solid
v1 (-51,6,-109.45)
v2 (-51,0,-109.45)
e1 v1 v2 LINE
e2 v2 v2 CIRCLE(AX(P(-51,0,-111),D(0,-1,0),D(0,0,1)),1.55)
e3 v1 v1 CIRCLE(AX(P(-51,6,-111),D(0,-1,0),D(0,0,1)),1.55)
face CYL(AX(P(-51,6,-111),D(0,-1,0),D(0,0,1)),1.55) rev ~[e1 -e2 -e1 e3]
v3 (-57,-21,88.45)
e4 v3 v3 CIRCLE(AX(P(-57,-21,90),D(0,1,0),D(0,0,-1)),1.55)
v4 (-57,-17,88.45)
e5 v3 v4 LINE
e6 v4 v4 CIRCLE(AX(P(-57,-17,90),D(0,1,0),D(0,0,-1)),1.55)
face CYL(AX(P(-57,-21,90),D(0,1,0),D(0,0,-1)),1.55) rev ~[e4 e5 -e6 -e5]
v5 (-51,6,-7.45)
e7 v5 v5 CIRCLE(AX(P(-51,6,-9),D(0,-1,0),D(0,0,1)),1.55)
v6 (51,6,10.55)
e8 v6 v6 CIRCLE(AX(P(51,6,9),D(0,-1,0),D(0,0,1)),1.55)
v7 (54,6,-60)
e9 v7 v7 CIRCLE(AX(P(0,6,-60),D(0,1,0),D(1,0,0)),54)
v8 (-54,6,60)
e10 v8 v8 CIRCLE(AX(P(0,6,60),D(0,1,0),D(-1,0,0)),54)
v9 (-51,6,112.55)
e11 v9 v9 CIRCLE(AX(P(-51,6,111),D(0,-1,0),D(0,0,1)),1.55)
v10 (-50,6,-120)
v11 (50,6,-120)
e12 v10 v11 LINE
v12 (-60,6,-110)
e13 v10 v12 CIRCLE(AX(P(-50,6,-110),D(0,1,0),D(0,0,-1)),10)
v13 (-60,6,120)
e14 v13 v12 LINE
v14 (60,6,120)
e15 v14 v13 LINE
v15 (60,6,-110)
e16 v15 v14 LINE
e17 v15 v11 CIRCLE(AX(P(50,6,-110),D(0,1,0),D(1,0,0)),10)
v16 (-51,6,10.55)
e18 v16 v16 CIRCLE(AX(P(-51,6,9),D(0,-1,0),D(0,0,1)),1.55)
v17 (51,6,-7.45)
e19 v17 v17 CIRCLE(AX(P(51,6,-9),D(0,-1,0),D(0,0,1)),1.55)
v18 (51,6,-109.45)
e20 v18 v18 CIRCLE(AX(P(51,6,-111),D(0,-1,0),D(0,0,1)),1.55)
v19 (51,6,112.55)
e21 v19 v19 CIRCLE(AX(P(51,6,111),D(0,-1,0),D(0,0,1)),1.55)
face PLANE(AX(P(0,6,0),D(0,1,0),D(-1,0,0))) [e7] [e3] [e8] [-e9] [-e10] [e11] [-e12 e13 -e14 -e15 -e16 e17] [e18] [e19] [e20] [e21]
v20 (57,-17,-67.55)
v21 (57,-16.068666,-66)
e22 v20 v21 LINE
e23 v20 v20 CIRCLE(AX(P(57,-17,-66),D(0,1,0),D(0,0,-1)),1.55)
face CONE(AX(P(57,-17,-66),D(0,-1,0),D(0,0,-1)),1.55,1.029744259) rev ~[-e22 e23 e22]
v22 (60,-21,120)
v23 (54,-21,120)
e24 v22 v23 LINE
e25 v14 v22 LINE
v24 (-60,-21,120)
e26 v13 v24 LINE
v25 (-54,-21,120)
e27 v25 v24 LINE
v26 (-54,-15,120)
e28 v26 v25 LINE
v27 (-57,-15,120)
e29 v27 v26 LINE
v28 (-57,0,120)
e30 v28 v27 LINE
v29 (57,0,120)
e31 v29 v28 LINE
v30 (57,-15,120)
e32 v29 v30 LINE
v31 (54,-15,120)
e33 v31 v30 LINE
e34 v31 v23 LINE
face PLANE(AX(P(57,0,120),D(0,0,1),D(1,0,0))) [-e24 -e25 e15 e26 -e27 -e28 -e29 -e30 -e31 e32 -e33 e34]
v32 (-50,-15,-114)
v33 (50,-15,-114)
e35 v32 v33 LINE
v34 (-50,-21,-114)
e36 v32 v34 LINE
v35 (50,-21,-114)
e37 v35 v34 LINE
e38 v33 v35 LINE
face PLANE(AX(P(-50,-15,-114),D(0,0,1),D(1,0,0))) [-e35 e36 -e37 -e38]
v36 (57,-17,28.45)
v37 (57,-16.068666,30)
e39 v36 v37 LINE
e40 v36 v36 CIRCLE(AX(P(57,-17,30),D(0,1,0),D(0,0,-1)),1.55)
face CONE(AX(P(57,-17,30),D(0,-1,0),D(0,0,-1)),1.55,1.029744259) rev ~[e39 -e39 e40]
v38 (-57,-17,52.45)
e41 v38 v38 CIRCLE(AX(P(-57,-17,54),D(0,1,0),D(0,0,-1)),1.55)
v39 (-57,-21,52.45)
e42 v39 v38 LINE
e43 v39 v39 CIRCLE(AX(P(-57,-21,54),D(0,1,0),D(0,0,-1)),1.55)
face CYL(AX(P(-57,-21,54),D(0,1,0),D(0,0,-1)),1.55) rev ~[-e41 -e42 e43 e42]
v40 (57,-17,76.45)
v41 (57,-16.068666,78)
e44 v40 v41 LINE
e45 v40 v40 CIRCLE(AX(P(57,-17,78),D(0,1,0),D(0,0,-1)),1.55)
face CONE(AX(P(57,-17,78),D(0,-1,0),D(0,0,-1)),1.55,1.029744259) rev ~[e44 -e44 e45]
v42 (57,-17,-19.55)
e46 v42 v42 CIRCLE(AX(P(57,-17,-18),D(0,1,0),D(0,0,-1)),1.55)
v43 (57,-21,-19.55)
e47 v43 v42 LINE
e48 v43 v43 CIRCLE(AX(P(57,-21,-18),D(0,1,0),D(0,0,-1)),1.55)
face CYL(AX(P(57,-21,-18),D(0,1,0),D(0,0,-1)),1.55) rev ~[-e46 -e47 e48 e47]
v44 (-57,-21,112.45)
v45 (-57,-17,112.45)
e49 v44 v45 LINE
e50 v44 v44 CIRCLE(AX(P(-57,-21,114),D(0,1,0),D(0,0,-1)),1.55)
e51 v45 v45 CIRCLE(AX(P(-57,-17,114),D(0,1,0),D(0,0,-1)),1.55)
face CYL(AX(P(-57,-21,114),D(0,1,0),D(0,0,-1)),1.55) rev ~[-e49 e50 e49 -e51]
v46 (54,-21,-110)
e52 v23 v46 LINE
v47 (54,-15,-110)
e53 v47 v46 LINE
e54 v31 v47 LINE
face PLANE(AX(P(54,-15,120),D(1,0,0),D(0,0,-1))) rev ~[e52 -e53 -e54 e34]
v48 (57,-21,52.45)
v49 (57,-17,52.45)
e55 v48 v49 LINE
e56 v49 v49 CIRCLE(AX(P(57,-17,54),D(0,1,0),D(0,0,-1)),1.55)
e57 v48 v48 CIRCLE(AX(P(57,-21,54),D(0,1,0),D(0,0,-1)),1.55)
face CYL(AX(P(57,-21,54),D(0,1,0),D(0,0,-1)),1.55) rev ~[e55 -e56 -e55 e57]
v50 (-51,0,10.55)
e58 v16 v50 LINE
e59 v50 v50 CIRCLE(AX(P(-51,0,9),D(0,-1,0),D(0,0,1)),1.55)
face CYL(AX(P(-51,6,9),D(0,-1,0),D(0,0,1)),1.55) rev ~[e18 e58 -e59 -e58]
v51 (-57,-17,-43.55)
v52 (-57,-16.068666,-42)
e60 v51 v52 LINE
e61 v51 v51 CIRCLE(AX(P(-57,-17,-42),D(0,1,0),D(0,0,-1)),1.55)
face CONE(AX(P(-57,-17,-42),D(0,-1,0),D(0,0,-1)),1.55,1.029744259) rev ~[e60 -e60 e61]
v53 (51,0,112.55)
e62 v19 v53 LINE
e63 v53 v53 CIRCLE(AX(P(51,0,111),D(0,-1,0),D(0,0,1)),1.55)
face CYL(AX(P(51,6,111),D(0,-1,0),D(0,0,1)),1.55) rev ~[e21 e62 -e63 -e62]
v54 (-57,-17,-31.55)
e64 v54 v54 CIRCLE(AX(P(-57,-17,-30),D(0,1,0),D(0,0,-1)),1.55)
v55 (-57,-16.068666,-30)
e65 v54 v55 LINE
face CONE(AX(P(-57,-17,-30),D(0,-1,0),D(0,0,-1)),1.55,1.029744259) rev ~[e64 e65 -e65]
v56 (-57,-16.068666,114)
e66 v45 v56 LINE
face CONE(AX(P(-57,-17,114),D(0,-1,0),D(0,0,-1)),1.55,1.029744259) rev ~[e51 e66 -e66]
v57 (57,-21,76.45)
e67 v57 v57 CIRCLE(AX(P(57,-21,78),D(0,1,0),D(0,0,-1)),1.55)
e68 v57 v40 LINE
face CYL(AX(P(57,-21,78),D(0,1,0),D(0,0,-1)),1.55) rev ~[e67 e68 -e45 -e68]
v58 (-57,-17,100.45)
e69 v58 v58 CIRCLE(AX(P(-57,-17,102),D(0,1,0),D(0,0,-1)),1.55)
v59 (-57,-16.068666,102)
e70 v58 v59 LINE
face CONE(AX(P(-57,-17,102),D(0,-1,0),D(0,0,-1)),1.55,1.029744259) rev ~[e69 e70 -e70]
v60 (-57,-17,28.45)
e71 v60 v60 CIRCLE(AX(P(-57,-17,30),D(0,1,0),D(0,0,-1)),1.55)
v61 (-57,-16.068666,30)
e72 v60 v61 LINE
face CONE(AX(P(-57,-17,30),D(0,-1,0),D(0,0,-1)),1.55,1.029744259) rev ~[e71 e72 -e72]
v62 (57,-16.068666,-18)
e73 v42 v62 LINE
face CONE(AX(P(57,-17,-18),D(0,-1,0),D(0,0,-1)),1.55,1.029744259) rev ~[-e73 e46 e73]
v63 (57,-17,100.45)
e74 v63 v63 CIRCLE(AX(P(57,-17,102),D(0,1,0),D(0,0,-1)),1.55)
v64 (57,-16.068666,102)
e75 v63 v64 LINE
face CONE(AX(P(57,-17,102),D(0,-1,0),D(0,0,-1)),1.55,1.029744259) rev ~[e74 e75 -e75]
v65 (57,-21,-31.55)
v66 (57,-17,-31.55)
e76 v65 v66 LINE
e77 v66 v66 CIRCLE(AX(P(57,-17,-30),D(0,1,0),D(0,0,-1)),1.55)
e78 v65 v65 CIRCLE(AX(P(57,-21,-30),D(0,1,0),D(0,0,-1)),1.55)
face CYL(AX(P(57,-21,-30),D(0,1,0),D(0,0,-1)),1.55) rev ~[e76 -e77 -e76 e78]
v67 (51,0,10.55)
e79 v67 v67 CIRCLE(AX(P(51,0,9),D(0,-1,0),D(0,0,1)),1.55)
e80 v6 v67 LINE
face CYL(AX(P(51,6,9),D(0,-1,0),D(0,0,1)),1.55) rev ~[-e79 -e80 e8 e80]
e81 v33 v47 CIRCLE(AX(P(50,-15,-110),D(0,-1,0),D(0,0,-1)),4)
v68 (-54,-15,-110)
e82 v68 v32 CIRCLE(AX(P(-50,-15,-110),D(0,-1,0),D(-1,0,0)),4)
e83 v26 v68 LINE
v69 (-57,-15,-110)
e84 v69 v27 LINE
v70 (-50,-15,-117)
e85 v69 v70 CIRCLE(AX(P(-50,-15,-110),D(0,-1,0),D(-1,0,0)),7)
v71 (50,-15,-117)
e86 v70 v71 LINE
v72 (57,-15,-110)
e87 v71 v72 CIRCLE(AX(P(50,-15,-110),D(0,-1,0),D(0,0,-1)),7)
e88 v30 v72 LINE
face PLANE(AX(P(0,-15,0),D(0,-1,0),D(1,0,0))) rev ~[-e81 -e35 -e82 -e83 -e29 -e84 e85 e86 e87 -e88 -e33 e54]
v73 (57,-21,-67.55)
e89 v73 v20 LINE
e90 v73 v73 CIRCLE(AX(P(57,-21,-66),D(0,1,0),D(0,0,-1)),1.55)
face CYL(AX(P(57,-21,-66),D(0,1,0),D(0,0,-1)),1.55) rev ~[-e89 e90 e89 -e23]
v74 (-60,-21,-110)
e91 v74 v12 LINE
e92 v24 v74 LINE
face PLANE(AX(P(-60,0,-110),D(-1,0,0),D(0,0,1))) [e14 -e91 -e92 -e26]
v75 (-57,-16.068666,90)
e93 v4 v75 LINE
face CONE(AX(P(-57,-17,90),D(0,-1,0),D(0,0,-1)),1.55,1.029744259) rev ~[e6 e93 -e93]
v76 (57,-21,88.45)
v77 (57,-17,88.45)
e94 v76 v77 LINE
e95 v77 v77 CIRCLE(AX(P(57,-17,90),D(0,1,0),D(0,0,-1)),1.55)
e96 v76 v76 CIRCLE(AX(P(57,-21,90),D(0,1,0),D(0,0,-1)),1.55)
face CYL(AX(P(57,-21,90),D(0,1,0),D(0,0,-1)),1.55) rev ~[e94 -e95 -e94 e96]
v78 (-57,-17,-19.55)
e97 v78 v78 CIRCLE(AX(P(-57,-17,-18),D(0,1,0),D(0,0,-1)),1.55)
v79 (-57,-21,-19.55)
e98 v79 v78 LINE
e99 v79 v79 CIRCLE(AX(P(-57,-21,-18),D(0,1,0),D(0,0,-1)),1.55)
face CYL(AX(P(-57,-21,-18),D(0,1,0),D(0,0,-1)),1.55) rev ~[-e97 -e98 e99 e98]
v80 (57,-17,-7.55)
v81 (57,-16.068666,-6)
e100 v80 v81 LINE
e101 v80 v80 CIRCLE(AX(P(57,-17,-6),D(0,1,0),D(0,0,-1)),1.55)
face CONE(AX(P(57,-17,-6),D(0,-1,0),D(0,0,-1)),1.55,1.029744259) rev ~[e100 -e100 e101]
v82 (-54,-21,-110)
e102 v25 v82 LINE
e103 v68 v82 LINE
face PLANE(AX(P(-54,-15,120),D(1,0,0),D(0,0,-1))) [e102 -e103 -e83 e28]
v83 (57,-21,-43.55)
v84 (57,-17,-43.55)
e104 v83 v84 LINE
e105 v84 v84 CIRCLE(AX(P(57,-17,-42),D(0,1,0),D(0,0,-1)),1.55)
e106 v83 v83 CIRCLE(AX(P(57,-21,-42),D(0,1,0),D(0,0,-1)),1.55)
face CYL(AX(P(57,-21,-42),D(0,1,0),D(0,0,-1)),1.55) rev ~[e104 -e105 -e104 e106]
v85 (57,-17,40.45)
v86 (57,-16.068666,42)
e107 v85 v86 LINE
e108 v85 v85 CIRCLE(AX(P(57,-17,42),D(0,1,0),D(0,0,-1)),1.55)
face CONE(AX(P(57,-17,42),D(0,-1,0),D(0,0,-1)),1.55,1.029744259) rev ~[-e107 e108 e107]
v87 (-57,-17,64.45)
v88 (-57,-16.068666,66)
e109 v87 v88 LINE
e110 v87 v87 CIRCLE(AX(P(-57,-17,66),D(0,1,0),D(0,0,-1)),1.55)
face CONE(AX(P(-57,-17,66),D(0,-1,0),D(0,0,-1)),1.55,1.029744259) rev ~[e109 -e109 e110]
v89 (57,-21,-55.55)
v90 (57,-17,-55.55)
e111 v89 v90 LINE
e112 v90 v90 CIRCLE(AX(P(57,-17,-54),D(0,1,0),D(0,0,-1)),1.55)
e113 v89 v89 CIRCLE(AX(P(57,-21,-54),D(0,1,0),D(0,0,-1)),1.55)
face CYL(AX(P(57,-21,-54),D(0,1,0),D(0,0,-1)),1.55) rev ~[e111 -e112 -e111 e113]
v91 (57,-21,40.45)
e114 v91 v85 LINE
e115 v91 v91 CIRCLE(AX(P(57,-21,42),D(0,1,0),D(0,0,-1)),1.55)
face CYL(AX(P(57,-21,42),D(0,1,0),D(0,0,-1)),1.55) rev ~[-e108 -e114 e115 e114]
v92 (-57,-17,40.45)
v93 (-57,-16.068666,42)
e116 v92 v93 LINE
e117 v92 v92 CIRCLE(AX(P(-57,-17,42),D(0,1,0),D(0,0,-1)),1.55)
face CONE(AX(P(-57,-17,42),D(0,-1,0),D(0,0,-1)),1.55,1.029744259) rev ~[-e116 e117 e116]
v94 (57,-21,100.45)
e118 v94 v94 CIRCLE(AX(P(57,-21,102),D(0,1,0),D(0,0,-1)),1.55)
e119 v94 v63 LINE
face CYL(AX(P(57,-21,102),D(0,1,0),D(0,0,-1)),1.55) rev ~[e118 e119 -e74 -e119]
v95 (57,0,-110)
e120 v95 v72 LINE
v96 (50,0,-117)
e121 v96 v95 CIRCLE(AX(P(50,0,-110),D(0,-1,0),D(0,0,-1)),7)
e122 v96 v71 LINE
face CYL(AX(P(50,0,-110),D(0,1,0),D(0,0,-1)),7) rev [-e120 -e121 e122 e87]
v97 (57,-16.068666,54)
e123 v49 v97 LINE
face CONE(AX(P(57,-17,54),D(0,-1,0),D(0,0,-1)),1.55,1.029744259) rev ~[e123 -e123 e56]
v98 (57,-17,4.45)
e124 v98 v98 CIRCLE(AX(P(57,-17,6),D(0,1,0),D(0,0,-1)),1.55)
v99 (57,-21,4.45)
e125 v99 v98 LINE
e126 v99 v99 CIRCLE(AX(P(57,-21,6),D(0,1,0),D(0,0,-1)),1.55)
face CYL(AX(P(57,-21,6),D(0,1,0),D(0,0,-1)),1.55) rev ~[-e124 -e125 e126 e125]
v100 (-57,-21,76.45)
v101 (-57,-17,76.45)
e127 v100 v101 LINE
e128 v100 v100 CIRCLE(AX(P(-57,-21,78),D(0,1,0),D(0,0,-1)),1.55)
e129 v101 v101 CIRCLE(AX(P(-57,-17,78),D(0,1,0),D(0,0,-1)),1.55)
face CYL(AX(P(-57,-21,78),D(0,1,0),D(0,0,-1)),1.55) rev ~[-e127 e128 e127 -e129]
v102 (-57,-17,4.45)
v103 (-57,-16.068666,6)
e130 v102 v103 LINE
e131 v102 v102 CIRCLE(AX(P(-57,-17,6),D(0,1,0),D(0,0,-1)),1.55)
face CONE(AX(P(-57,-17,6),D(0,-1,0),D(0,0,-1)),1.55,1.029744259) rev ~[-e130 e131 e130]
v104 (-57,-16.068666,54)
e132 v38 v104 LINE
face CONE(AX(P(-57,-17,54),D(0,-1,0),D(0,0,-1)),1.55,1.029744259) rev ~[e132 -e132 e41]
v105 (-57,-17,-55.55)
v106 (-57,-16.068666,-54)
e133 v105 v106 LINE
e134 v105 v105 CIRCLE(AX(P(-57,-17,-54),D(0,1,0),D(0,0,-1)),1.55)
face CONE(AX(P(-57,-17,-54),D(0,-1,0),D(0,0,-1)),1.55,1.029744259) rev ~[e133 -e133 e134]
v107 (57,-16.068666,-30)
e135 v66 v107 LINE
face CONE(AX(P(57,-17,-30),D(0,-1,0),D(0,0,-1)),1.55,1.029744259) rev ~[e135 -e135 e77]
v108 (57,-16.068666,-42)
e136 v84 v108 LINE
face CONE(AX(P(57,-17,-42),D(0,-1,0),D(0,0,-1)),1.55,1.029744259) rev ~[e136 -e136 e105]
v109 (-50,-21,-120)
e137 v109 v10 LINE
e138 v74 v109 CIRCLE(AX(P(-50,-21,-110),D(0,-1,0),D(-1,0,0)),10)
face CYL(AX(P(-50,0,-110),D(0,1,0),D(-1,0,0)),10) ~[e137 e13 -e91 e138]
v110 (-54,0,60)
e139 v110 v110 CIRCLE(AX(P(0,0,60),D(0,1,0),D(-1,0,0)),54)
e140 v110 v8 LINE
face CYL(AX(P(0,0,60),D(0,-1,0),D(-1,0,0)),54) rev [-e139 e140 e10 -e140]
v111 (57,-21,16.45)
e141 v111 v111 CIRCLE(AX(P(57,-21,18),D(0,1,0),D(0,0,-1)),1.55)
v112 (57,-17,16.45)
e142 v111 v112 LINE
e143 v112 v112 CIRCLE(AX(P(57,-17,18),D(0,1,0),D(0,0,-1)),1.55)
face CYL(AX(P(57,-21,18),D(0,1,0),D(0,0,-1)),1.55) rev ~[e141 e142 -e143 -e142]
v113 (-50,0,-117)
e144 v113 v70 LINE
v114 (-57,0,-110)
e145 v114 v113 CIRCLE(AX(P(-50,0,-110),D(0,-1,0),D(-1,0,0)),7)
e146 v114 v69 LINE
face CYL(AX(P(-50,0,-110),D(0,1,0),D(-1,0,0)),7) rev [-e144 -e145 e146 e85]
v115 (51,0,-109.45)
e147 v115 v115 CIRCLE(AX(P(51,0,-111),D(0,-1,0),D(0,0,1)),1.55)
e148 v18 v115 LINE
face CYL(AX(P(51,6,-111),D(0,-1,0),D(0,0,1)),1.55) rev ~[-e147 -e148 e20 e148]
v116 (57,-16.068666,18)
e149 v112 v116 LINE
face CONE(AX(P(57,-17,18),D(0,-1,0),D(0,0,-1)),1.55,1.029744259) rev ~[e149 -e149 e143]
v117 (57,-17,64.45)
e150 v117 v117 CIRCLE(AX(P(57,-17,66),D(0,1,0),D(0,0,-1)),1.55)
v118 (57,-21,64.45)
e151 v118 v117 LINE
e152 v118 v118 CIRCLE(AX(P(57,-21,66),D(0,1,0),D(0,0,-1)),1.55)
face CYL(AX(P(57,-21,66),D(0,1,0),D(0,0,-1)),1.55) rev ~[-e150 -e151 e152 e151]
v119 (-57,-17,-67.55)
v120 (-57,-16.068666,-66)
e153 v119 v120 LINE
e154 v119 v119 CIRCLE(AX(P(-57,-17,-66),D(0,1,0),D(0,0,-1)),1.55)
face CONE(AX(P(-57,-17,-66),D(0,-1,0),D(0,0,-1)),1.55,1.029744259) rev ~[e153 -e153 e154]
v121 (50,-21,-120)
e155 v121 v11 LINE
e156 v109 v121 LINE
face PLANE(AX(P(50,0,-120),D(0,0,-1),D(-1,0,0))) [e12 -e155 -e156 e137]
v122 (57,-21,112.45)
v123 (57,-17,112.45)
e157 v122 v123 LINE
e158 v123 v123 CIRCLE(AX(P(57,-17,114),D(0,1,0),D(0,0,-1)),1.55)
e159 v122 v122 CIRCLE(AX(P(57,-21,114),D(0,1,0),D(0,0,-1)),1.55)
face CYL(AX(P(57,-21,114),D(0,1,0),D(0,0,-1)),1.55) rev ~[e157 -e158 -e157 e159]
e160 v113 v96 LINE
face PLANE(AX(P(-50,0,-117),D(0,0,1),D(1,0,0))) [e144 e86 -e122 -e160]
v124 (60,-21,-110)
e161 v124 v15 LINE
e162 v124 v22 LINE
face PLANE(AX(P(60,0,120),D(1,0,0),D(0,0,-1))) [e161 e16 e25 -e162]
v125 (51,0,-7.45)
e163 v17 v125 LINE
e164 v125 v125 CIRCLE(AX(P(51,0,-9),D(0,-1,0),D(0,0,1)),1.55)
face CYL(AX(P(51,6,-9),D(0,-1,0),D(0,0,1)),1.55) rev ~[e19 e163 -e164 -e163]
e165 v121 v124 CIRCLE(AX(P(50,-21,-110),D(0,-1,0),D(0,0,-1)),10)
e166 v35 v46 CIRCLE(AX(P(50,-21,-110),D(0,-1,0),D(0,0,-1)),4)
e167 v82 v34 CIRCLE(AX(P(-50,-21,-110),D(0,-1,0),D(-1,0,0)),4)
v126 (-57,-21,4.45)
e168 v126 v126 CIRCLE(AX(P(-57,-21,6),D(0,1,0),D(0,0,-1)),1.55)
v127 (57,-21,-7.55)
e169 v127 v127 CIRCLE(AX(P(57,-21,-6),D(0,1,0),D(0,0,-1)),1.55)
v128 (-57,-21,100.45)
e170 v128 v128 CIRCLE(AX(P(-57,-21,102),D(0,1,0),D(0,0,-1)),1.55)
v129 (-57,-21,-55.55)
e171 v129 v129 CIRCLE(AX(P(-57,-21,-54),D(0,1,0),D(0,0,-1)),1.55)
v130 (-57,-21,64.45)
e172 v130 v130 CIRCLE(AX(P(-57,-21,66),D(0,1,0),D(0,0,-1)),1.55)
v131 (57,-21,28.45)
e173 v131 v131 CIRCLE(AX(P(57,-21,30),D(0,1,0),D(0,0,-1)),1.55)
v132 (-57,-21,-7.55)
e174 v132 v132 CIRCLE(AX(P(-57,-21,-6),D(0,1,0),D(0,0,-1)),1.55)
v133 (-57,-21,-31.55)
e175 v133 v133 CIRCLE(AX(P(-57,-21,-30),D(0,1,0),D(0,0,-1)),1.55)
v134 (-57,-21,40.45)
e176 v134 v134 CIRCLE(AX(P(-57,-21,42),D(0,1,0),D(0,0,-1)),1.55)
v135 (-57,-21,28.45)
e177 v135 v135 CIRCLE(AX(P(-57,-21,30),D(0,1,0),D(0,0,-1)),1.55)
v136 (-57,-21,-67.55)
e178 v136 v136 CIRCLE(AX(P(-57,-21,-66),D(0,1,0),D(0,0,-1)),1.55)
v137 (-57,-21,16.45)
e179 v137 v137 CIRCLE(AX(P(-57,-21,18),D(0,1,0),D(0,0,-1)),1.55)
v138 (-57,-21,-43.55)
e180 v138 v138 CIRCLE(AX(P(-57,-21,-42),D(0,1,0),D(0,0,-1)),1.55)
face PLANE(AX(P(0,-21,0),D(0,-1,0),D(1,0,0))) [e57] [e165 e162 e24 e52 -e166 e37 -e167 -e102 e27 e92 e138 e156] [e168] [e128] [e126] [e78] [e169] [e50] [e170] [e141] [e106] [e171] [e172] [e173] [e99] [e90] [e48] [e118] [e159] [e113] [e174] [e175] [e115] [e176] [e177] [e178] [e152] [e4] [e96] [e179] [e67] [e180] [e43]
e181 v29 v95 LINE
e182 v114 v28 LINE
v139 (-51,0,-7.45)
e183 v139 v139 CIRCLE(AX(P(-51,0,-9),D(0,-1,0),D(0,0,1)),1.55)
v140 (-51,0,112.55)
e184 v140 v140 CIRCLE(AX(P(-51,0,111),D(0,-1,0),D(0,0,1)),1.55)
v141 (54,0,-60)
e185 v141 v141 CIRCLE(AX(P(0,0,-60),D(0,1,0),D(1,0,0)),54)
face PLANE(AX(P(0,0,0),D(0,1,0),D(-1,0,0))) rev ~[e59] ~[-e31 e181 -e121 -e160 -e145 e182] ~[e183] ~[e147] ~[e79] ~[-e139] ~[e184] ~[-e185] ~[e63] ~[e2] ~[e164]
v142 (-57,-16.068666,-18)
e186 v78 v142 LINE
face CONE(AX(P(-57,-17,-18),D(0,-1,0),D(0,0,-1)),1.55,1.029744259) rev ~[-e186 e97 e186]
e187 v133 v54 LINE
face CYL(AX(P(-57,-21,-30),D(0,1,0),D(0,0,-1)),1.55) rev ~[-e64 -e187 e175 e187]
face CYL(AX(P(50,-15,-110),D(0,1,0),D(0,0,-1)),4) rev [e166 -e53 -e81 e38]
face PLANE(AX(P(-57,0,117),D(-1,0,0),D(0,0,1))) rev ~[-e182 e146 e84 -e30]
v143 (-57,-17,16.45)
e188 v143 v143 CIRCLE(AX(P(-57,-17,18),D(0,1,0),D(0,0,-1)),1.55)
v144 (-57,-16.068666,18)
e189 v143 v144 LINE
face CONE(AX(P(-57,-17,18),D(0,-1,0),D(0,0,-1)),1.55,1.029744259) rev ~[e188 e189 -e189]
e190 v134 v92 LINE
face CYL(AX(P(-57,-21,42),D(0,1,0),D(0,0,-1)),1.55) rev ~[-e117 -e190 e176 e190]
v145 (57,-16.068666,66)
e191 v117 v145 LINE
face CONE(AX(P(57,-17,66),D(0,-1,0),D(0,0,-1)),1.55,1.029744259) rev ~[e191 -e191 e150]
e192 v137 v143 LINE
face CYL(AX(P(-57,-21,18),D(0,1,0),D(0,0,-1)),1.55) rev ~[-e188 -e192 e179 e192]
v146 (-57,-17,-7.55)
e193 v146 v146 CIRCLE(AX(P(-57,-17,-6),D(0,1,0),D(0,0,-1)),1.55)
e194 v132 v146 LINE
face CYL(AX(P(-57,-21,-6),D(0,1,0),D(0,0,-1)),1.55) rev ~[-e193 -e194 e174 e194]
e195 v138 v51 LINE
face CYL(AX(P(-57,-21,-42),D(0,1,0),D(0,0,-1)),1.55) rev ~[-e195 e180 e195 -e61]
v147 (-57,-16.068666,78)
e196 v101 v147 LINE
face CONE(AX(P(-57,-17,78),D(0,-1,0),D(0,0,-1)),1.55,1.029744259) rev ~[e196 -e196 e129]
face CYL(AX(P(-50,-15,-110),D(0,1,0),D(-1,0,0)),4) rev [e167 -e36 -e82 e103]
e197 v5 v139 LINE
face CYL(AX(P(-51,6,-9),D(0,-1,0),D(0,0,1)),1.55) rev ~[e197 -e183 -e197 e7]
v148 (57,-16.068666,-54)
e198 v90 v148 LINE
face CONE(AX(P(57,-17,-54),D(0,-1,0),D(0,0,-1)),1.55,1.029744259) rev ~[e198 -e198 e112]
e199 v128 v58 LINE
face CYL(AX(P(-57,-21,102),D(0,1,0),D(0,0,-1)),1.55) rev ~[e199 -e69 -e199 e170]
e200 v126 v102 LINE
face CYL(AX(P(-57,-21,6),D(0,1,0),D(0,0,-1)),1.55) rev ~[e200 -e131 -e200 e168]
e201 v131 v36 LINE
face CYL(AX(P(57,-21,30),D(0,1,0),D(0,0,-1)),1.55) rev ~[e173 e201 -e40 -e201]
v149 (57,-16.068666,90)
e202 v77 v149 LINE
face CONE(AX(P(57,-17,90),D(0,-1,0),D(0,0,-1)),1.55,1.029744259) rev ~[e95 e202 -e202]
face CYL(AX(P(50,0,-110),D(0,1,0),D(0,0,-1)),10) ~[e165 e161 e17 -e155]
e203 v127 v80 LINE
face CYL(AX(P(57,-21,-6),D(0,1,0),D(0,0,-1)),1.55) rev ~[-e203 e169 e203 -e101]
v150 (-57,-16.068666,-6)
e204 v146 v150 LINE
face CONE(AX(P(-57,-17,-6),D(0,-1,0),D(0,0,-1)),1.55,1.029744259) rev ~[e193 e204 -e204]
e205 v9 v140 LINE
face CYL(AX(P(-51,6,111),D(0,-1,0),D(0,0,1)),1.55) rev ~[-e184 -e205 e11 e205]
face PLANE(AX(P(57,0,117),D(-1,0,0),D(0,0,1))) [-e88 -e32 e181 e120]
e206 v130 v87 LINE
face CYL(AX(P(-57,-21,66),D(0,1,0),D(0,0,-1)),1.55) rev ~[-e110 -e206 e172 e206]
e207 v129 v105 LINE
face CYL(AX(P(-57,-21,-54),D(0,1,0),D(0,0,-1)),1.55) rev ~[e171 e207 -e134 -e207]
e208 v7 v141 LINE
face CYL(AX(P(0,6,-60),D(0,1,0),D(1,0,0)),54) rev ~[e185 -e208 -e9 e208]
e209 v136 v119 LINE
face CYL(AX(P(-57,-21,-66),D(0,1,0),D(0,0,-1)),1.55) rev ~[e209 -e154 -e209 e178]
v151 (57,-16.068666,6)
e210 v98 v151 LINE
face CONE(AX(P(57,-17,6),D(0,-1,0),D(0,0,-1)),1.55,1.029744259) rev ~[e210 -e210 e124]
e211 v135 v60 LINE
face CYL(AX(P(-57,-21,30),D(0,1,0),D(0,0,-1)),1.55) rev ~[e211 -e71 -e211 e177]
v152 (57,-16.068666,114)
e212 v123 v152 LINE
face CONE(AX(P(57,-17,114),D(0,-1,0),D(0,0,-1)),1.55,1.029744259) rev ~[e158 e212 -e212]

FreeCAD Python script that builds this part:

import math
import FreeCAD as App
import Part
import Sketcher
from FreeCAD import Vector

doc = App.newDocument("Part")
body = doc.addObject("PartDesign::Body", "Body")

# Sketch on XZ plane
sketch1 = body.newObject("Sketcher::SketchObject", "Sketch")
sketch1.AttachmentSupport = (doc.getObject("XZ_Plane"), [""])
sketch1.MapMode = "FlatFace"
sketch1.addGeometry(Part.LineSegment(Vector(-60, 120, 0), Vector(60, 120, 0)), False)
sketch1.addGeometry(Part.LineSegment(Vector(60, 120, 0), Vector(60, -110, 0)), False)
sketch1.addGeometry(Part.ArcOfCircle(Part.Circle(Vector(50, -110, 0), Vector(0, 0, 1), 10), math.radians(-90), math.radians(0)), False)
sketch1.addGeometry(Part.LineSegment(Vector(50, -120, 0), Vector(-50, -120, 0)), False)
sketch1.addGeometry(Part.ArcOfCircle(Part.Circle(Vector(-50, -110, 0), Vector(0, 0, 1), 10), math.radians(180), math.radians(270)), False)
sketch1.addGeometry(Part.LineSegment(Vector(-60, -110, 0), Vector(-60, 120, 0)), False)
sketch1.addGeometry(Part.Circle(Vector(0, 60, 0), Vector(0, 0, 1), 54), False)
sketch1.addConstraint(Sketcher.Constraint("Coincident", 0, 2, 1, 1))
sketch1.addConstraint(Sketcher.Constraint("Tangent", 1, 2, 2, 2))
sketch1.addConstraint(Sketcher.Constraint("Tangent", 2, 1, 3, 1))
sketch1.addConstraint(Sketcher.Constraint("Tangent", 3, 2, 4, 2))
sketch1.addConstraint(Sketcher.Constraint("Tangent", 4, 1, 5, 1))
sketch1.addConstraint(Sketcher.Constraint("Coincident", 5, 2, 0, 1))
sketch1.addConstraint(Sketcher.Constraint("Horizontal", 0))
sketch1.addConstraint(Sketcher.Constraint("Vertical", 1))
sketch1.addConstraint(Sketcher.Constraint("Horizontal", 3))
sketch1.addConstraint(Sketcher.Constraint("Vertical", 5))
sketch1.addConstraint(Sketcher.Constraint("Equal", 2, 4))
sketch1.addConstraint(Sketcher.Constraint("PointOnObject", 6, 3, -2))
sketch1.addConstraint(Sketcher.Constraint("Radius", 2, 10.0))
sketch1.addConstraint(Sketcher.Constraint("DistanceX", 0, 1, 0, 2, 120.0))
sketch1.addConstraint(Sketcher.Constraint("Diameter", 6, 108.0))
sketch1.addConstraint(Sketcher.Constraint("DistanceY", -1, 1, 0, 2, 120.0))
sketch1.addConstraint(Sketcher.Constraint("DistanceY", 2, 1, -1, 1, 120.0))
sketch1.addConstraint(Sketcher.Constraint("DistanceX", -1, 1, 2, 3, 50.0))
sketch1.addConstraint(Sketcher.Constraint("DistanceY", -1, 1, 6, 3, 60.0))
pad1 = body.newObject("PartDesign::Pad", "Pad")
pad1.Profile = sketch1
pad1.Length = 6
pad1.Reversed = True

# Sketch on XZ plane
sketch2 = body.newObject("Sketcher::SketchObject", "Sketch001")
sketch2.AttachmentSupport = (doc.getObject("XZ_Plane"), [""])
sketch2.MapMode = "FlatFace"
sketch2.addGeometry(Part.LineSegment(Vector(60, -110, 0), Vector(60, 120, 0)), False)
sketch2.addGeometry(Part.LineSegment(Vector(60, 120, 0), Vector(57, 120, 0)), False)
sketch2.addGeometry(Part.LineSegment(Vector(57, 120, 0), Vector(57, -110, 0)), False)
sketch2.addGeometry(Part.ArcOfCircle(Part.Circle(Vector(50, -110, 0), Vector(0, 0, 1), 7), math.radians(-90), math.radians(0)), False)
sketch2.addGeometry(Part.LineSegment(Vector(50, -117, 0), Vector(-50, -117, 0)), False)
sketch2.addGeometry(Part.ArcOfCircle(Part.Circle(Vector(-50, -110, 0), Vector(0, 0, 1), 7), math.radians(180), math.radians(270)), False)
sketch2.addGeometry(Part.LineSegment(Vector(-57, -110, 0), Vector(-57, 120, 0)), False)
sketch2.addGeometry(Part.LineSegment(Vector(-57, 120, 0), Vector(-60, 120, 0)), False)
sketch2.addGeometry(Part.LineSegment(Vector(-60, 120, 0), Vector(-60, -110, 0)), False)
sketch2.addGeometry(Part.ArcOfCircle(Part.Circle(Vector(-50, -110, 0), Vector(0, 0, 1), 10), math.radians(180), math.radians(270)), False)
sketch2.addGeometry(Part.LineSegment(Vector(-50, -120, 0), Vector(50, -120, 0)), False)
sketch2.addGeometry(Part.ArcOfCircle(Part.Circle(Vector(50, -110, 0), Vector(0, 0, 1), 10), math.radians(-90), math.radians(0)), False)
sketch2.addConstraint(Sketcher.Constraint("Coincident", 0, 2, 1, 1))
sketch2.addConstraint(Sketcher.Constraint("Coincident", 1, 2, 2, 1))
sketch2.addConstraint(Sketcher.Constraint("Tangent", 2, 2, 3, 2))
sketch2.addConstraint(Sketcher.Constraint("Tangent", 3, 1, 4, 1))
sketch2.addConstraint(Sketcher.Constraint("Tangent", 4, 2, 5, 2))
sketch2.addConstraint(Sketcher.Constraint("Tangent", 5, 1, 6, 1))
sketch2.addConstraint(Sketcher.Constraint("Coincident", 6, 2, 7, 1))
sketch2.addConstraint(Sketcher.Constraint("Coincident", 7, 2, 8, 1))
sketch2.addConstraint(Sketcher.Constraint("Tangent", 8, 2, 9, 1))
sketch2.addConstraint(Sketcher.Constraint("Tangent", 9, 2, 10, 1))
sketch2.addConstraint(Sketcher.Constraint("Tangent", 10, 2, 11, 1))
sketch2.addConstraint(Sketcher.Constraint("Tangent", 11, 2, 0, 1))
sketch2.addConstraint(Sketcher.Constraint("Vertical", 0))
sketch2.addConstraint(Sketcher.Constraint("Horizontal", 1))
sketch2.addConstraint(Sketcher.Constraint("Vertical", 2))
sketch2.addConstraint(Sketcher.Constraint("Horizontal", 4))
sketch2.addConstraint(Sketcher.Constraint("Vertical", 6))
sketch2.addConstraint(Sketcher.Constraint("Horizontal", 7))
sketch2.addConstraint(Sketcher.Constraint("Vertical", 8))
sketch2.addConstraint(Sketcher.Constraint("Horizontal", 10))
sketch2.addConstraint(Sketcher.Constraint("Coincident", 9, 3, 5, 3))
sketch2.addConstraint(Sketcher.Constraint("Coincident", 11, 3, 3, 3))
sketch2.addConstraint(Sketcher.Constraint("Equal", 3, 5))
sketch2.addConstraint(Sketcher.Constraint("Symmetric", 1, 2, 6, 2, -2))
sketch2.addConstraint(Sketcher.Constraint("DistanceX", 1, 2, 1, 1, 3.0))
sketch2.addConstraint(Sketcher.Constraint("Radius", 3, 7.0))
sketch2.addConstraint(Sketcher.Constraint("DistanceX", 4, 2, 4, 1, 100.0))
sketch2.addConstraint(Sketcher.Constraint("DistanceY", 0, 1, 0, 2, 230.0))
sketch2.addConstraint(Sketcher.Constraint("DistanceY", 3, 3, -1, 1, 110.0))
pad2 = body.newObject("PartDesign::Pad", "Pad001")
pad2.Profile = sketch2
pad2.Length = 15

# Sketch on XZ plane
sketch3 = body.newObject("Sketcher::SketchObject", "Sketch002")
sketch3.AttachmentSupport = (doc.getObject("XZ_Plane"), [""])
sketch3.MapMode = "FlatFace"
sketch3.AttachmentOffset = App.Placement(Vector(0, 0, 15), App.Rotation())
sketch3.addGeometry(Part.ArcOfCircle(Part.Circle(Vector(50, -110, 0), Vector(0, 0, 1), 10), math.radians(-90), math.radians(0)), False)
sketch3.addGeometry(Part.LineSegment(Vector(60, -110, 0), Vector(60, 120, 0)), False)
sketch3.addGeometry(Part.LineSegment(Vector(60, 120, 0), Vector(54, 120, 0)), False)
sketch3.addGeometry(Part.LineSegment(Vector(54, 120, 0), Vector(54, -110, 0)), False)
sketch3.addGeometry(Part.ArcOfCircle(Part.Circle(Vector(50, -110, 0), Vector(0, 0, 1), 4), math.radians(-90), math.radians(0)), False)
sketch3.addGeometry(Part.LineSegment(Vector(50, -114, 0), Vector(-50, -114, 0)), False)
sketch3.addGeometry(Part.ArcOfCircle(Part.Circle(Vector(-50, -110, 0), Vector(0, 0, 1), 4), math.radians(180), math.radians(270)), False)
sketch3.addGeometry(Part.LineSegment(Vector(-54, -110, 0), Vector(-54, 120, 0)), False)
sketch3.addGeometry(Part.LineSegment(Vector(-54, 120, 0), Vector(-60, 120, 0)), False)
sketch3.addGeometry(Part.LineSegment(Vector(-60, 120, 0), Vector(-60, -110, 0)), False)
sketch3.addGeometry(Part.ArcOfCircle(Part.Circle(Vector(-50, -110, 0), Vector(0, 0, 1), 10), math.radians(180), math.radians(270)), False)
sketch3.addGeometry(Part.LineSegment(Vector(-50, -120, 0), Vector(50, -120, 0)), False)
sketch3.addConstraint(Sketcher.Constraint("Tangent", 0, 2, 1, 1))
sketch3.addConstraint(Sketcher.Constraint("Coincident", 1, 2, 2, 1))
sketch3.addConstraint(Sketcher.Constraint("Coincident", 2, 2, 3, 1))
sketch3.addConstraint(Sketcher.Constraint("Tangent", 3, 2, 4, 2))
sketch3.addConstraint(Sketcher.Constraint("Tangent", 4, 1, 5, 1))
sketch3.addConstraint(Sketcher.Constraint("Tangent", 5, 2, 6, 2))
sketch3.addConstraint(Sketcher.Constraint("Tangent", 6, 1, 7, 1))
sketch3.addConstraint(Sketcher.Constraint("Coincident", 7, 2, 8, 1))
sketch3.addConstraint(Sketcher.Constraint("Coincident", 8, 2, 9, 1))
sketch3.addConstraint(Sketcher.Constraint("Tangent", 9, 2, 10, 1))
sketch3.addConstraint(Sketcher.Constraint("Tangent", 10, 2, 11, 1))
sketch3.addConstraint(Sketcher.Constraint("Tangent", 11, 2, 0, 1))
sketch3.addConstraint(Sketcher.Constraint("Vertical", 1))
sketch3.addConstraint(Sketcher.Constraint("Horizontal", 2))
sketch3.addConstraint(Sketcher.Constraint("Vertical", 3))
sketch3.addConstraint(Sketcher.Constraint("Horizontal", 5))
sketch3.addConstraint(Sketcher.Constraint("Vertical", 7))
sketch3.addConstraint(Sketcher.Constraint("Horizontal", 8))
sketch3.addConstraint(Sketcher.Constraint("Vertical", 9))
sketch3.addConstraint(Sketcher.Constraint("Horizontal", 11))
sketch3.addConstraint(Sketcher.Constraint("Coincident", 4, 3, 0, 3))
sketch3.addConstraint(Sketcher.Constraint("Coincident", 10, 3, 6, 3))
sketch3.addConstraint(Sketcher.Constraint("Equal", 4, 6))
sketch3.addConstraint(Sketcher.Constraint("Symmetric", 2, 2, 7, 2, -2))
sketch3.addConstraint(Sketcher.Constraint("Radius", 0, 10.0))
sketch3.addConstraint(Sketcher.Constraint("Radius", 4, 4.0))
sketch3.addConstraint(Sketcher.Constraint("DistanceX", 5, 2, 5, 1, 100.0))
sketch3.addConstraint(Sketcher.Constraint("DistanceY", 1, 1, 1, 2, 230.0))
sketch3.addConstraint(Sketcher.Constraint("DistanceY", 0, 3, -1, 1, 110.0))
pad3 = body.newObject("PartDesign::Pad", "Pad002")
pad3.Profile = sketch3
pad3.Length = 6

# Sketch on XZ plane
sketch4 = body.newObject("Sketcher::SketchObject", "Sketch003")
sketch4.AttachmentSupport = (doc.getObject("XZ_Plane"), [""])
sketch4.MapMode = "FlatFace"
sketch4.AttachmentOffset = App.Placement(Vector(0, 0, -6), App.Rotation())
sketch4.addGeometry(Part.Circle(Vector(0, -60, 0), Vector(0, 0, 1), 54), False)
sketch4.addConstraint(Sketcher.Constraint("PointOnObject", 0, 3, -2))
sketch4.addConstraint(Sketcher.Constraint("Diameter", 0, 108.0))
sketch4.addConstraint(Sketcher.Constraint("DistanceY", 0, 3, -1, 1, 60.0))
pocket1 = body.newObject("PartDesign::Pocket", "Pocket")
pocket1.Profile = sketch4
pocket1.Type = "UpToFirst"
pocket1.Reversed = True

# Sketch on XZ plane
sketch5 = body.newObject("Sketcher::SketchObject", "Sketch004")
sketch5.AttachmentSupport = (doc.getObject("XZ_Plane"), [""])
sketch5.MapMode = "FlatFace"
sketch5.AttachmentOffset = App.Placement(Vector(0, 0, -6), App.Rotation())
sketch5.addGeometry(Part.Circle(Vector(-51, 9, 0), Vector(0, 0, 1), 1.6), False)
sketch5.addGeometry(Part.Circle(Vector(-51, 111, 0), Vector(0, 0, 1), 1.6), False)
sketch5.addGeometry(Part.Circle(Vector(51, 111, 0), Vector(0, 0, 1), 1.6), False)
sketch5.addGeometry(Part.Circle(Vector(51, 9, 0), Vector(0, 0, 1), 1.6), False)
sketch5.addGeometry(Part.Circle(Vector(-51, -111, 0), Vector(0, 0, 1), 1.6), False)
sketch5.addGeometry(Part.Circle(Vector(-51, -9, 0), Vector(0, 0, 1), 1.6), False)
sketch5.addGeometry(Part.Circle(Vector(51, -111, 0), Vector(0, 0, 1), 1.6), False)
sketch5.addGeometry(Part.Circle(Vector(51, -9, 0), Vector(0, 0, 1), 1.6), False)
sketch5.addConstraint(Sketcher.Constraint("Equal", 0, 1))
sketch5.addConstraint(Sketcher.Constraint("Equal", 1, 2))
sketch5.addConstraint(Sketcher.Constraint("Equal", 2, 3))
sketch5.addConstraint(Sketcher.Constraint("Equal", 3, 4))
sketch5.addConstraint(Sketcher.Constraint("Equal", 4, 5))
sketch5.addConstraint(Sketcher.Constraint("Equal", 5, 6))
sketch5.addConstraint(Sketcher.Constraint("Equal", 6, 7))
sketch5.addConstraint(Sketcher.Constraint("Symmetric", 2, 3, 4, 3, -1, 1))
sketch5.addConstraint(Sketcher.Constraint("Symmetric", 3, 3, 5, 3, -1, 1))
sketch5.addConstraint(Sketcher.Constraint("Symmetric", 1, 3, 6, 3, -1, 1))
sketch5.addConstraint(Sketcher.Constraint("Symmetric", 0, 3, 7, 3, -1, 1))
sketch5.addConstraint(Sketcher.Constraint("Symmetric", 1, 3, 2, 3, -2))
sketch5.addConstraint(Sketcher.Constraint("Symmetric", 0, 3, 3, 3, -2))
sketch5.addConstraint(Sketcher.Constraint("Vertical", 0, 3, 1, 3))
sketch5.addConstraint(Sketcher.Constraint("Diameter", 0, 3.1))
sketch5.addConstraint(Sketcher.Constraint("DistanceX", 0, 3, -1, 1, 51.0))
sketch5.addConstraint(Sketcher.Constraint("DistanceY", -1, 1, 0, 3, 9.0))
sketch5.addConstraint(Sketcher.Constraint("DistanceY", -1, 1, 1, 3, 111.0))
doc.recompute()
hole = body.newObject("PartDesign::Hole", "Hole")
hole.Profile = sketch5
hole.ThreadType = "None"
hole.Diameter = 3.1
hole.DepthType = "ThroughAll"
hole.Reversed = True

# Sketch on XZ plane
sketch6 = body.newObject("Sketcher::SketchObject", "Sketch005")
sketch6.AttachmentSupport = (doc.getObject("XZ_Plane"), [""])
sketch6.MapMode = "FlatFace"
sketch6.AttachmentOffset = App.Placement(Vector(0, 0, 21), App.Rotation())
sketch6.addGeometry(Part.Circle(Vector(57, 114, 0), Vector(0, 0, 1), 1.6), False)
sketch6.addGeometry(Part.Circle(Vector(-57, 114, 0), Vector(0, 0, 1), 1.6), False)
sketch6.addGeometry(Part.Circle(Vector(-57, 102, 0), Vector(0, 0, 1), 1.6), False)
sketch6.addGeometry(Part.Circle(Vector(57, 102, 0), Vector(0, 0, 1), 1.6), False)
sketch6.addGeometry(Part.Circle(Vector(-57, 90, 0), Vector(0, 0, 1), 1.6), False)
sketch6.addGeometry(Part.Circle(Vector(57, 90, 0), Vector(0, 0, 1), 1.6), False)
sketch6.addGeometry(Part.Circle(Vector(-57, 78, 0), Vector(0, 0, 1), 1.6), False)
sketch6.addGeometry(Part.Circle(Vector(57, 78, 0), Vector(0, 0, 1), 1.6), False)
sketch6.addGeometry(Part.Circle(Vector(-57, 66, 0), Vector(0, 0, 1), 1.6), False)
sketch6.addGeometry(Part.Circle(Vector(57, 66, 0), Vector(0, 0, 1), 1.6), False)
sketch6.addGeometry(Part.Circle(Vector(-57, 54, 0), Vector(0, 0, 1), 1.6), False)
sketch6.addGeometry(Part.Circle(Vector(57, 54, 0), Vector(0, 0, 1), 1.6), False)
sketch6.addGeometry(Part.Circle(Vector(-57, 42, 0), Vector(0, 0, 1), 1.6), False)
sketch6.addGeometry(Part.Circle(Vector(57, 42, 0), Vector(0, 0, 1), 1.6), False)
sketch6.addGeometry(Part.Circle(Vector(-57, 30, 0), Vector(0, 0, 1), 1.6), False)
sketch6.addGeometry(Part.Circle(Vector(57, 30, 0), Vector(0, 0, 1), 1.6), False)
sketch6.addGeometry(Part.Circle(Vector(-57, 18, 0), Vector(0, 0, 1), 1.6), False)
sketch6.addGeometry(Part.Circle(Vector(57, 18, 0), Vector(0, 0, 1), 1.6), False)
sketch6.addGeometry(Part.Circle(Vector(-57, 6, 0), Vector(0, 0, 1), 1.6), False)
sketch6.addGeometry(Part.Circle(Vector(57, 6, 0), Vector(0, 0, 1), 1.6), False)
sketch6.addGeometry(Part.Circle(Vector(-57, -6, 0), Vector(0, 0, 1), 1.6), False)
sketch6.addGeometry(Part.Circle(Vector(57, -6, 0), Vector(0, 0, 1), 1.6), False)
sketch6.addGeometry(Part.Circle(Vector(-57, -18, 0), Vector(0, 0, 1), 1.6), False)
sketch6.addGeometry(Part.Circle(Vector(57, -18, 0), Vector(0, 0, 1), 1.6), False)
sketch6.addGeometry(Part.Circle(Vector(-57, -30, 0), Vector(0, 0, 1), 1.6), False)
sketch6.addGeometry(Part.Circle(Vector(57, -30, 0), Vector(0, 0, 1), 1.6), False)
sketch6.addGeometry(Part.Circle(Vector(-57, -42, 0), Vector(0, 0, 1), 1.6), False)
sketch6.addGeometry(Part.Circle(Vector(57, -42, 0), Vector(0, 0, 1), 1.6), False)
sketch6.addGeometry(Part.Circle(Vector(-57, -54, 0), Vector(0, 0, 1), 1.6), False)
sketch6.addGeometry(Part.Circle(Vector(57, -54, 0), Vector(0, 0, 1), 1.6), False)
sketch6.addGeometry(Part.Circle(Vector(-57, -66, 0), Vector(0, 0, 1), 1.6), False)
sketch6.addGeometry(Part.Circle(Vector(57, -66, 0), Vector(0, 0, 1), 1.6), False)
sketch6.addConstraint(Sketcher.Constraint("Equal", 0, 1))
sketch6.addConstraint(Sketcher.Constraint("Equal", 1, 2))
sketch6.addConstraint(Sketcher.Constraint("Equal", 2, 3))
sketch6.addConstraint(Sketcher.Constraint("Equal", 3, 4))
sketch6.addConstraint(Sketcher.Constraint("Equal", 4, 5))
sketch6.addConstraint(Sketcher.Constraint("Equal", 5, 6))
sketch6.addConstraint(Sketcher.Constraint("Equal", 6, 7))
sketch6.addConstraint(Sketcher.Constraint("Equal", 7, 8))
sketch6.addConstraint(Sketcher.Constraint("Equal", 8, 9))
sketch6.addConstraint(Sketcher.Constraint("Equal", 9, 10))
sketch6.addConstraint(Sketcher.Constraint("Equal", 10, 11))
sketch6.addConstraint(Sketcher.Constraint("Equal", 11, 12))
sketch6.addConstraint(Sketcher.Constraint("Equal", 12, 13))
sketch6.addConstraint(Sketcher.Constraint("Equal", 13, 14))
sketch6.addConstraint(Sketcher.Constraint("Equal", 14, 15))
sketch6.addConstraint(Sketcher.Constraint("Equal", 15, 16))
sketch6.addConstraint(Sketcher.Constraint("Equal", 16, 17))
sketch6.addConstraint(Sketcher.Constraint("Equal", 17, 18))
sketch6.addConstraint(Sketcher.Constraint("Equal", 18, 19))
sketch6.addConstraint(Sketcher.Constraint("Equal", 19, 20))
sketch6.addConstraint(Sketcher.Constraint("Equal", 20, 21))
sketch6.addConstraint(Sketcher.Constraint("Equal", 21, 22))
sketch6.addConstraint(Sketcher.Constraint("Equal", 22, 23))
sketch6.addConstraint(Sketcher.Constraint("Equal", 23, 24))
sketch6.addConstraint(Sketcher.Constraint("Equal", 24, 25))
sketch6.addConstraint(Sketcher.Constraint("Equal", 25, 26))
sketch6.addConstraint(Sketcher.Constraint("Equal", 26, 27))
sketch6.addConstraint(Sketcher.Constraint("Equal", 27, 28))
sketch6.addConstraint(Sketcher.Constraint("Equal", 28, 29))
sketch6.addConstraint(Sketcher.Constraint("Equal", 29, 30))
sketch6.addConstraint(Sketcher.Constraint("Equal", 30, 31))
sketch6.addConstraint(Sketcher.Constraint("Symmetric", 19, 3, 20, 3, -1, 1))
sketch6.addConstraint(Sketcher.Constraint("Symmetric", 18, 3, 21, 3, -1, 1))
sketch6.addConstraint(Sketcher.Constraint("Symmetric", 17, 3, 22, 3, -1, 1))
sketch6.addConstraint(Sketcher.Constraint("Symmetric", 16, 3, 23, 3, -1, 1))
sketch6.addConstraint(Sketcher.Constraint("Symmetric", 15, 3, 24, 3, -1, 1))
sketch6.addConstraint(Sketcher.Constraint("Symmetric", 14, 3, 25, 3, -1, 1))
sketch6.addConstraint(Sketcher.Constraint("Symmetric", 13, 3, 26, 3, -1, 1))
sketch6.addConstraint(Sketcher.Constraint("Symmetric", 12, 3, 27, 3, -1, 1))
sketch6.addConstraint(Sketcher.Constraint("Symmetric", 11, 3, 28, 3, -1, 1))
sketch6.addConstraint(Sketcher.Constraint("Symmetric", 10, 3, 29, 3, -1, 1))
sketch6.addConstraint(Sketcher.Constraint("Symmetric", 9, 3, 30, 3, -1, 1))
sketch6.addConstraint(Sketcher.Constraint("Symmetric", 8, 3, 31, 3, -1, 1))
sketch6.addConstraint(Sketcher.Constraint("Symmetric", 0, 3, 1, 3, -2))
sketch6.addConstraint(Sketcher.Constraint("Symmetric", 2, 3, 3, 3, -2))
sketch6.addConstraint(Sketcher.Constraint("Symmetric", 4, 3, 5, 3, -2))
sketch6.addConstraint(Sketcher.Constraint("Symmetric", 6, 3, 7, 3, -2))
sketch6.addConstraint(Sketcher.Constraint("Symmetric", 8, 3, 9, 3, -2))
sketch6.addConstraint(Sketcher.Constraint("Symmetric", 10, 3, 11, 3, -2))
sketch6.addConstraint(Sketcher.Constraint("Symmetric", 12, 3, 13, 3, -2))
sketch6.addConstraint(Sketcher.Constraint("Symmetric", 14, 3, 15, 3, -2))
sketch6.addConstraint(Sketcher.Constraint("Symmetric", 16, 3, 17, 3, -2))
sketch6.addConstraint(Sketcher.Constraint("Symmetric", 18, 3, 19, 3, -2))
sketch6.addConstraint(Sketcher.Constraint("Vertical", 1, 3, 2, 3))
sketch6.addConstraint(Sketcher.Constraint("Vertical", 2, 3, 4, 3))
sketch6.addConstraint(Sketcher.Constraint("Vertical", 4, 3, 6, 3))
sketch6.addConstraint(Sketcher.Constraint("Vertical", 6, 3, 8, 3))
sketch6.addConstraint(Sketcher.Constraint("Vertical", 8, 3, 10, 3))
sketch6.addConstraint(Sketcher.Constraint("Vertical", 10, 3, 12, 3))
sketch6.addConstraint(Sketcher.Constraint("Vertical", 12, 3, 14, 3))
sketch6.addConstraint(Sketcher.Constraint("Vertical", 14, 3, 16, 3))
sketch6.addConstraint(Sketcher.Constraint("Vertical", 16, 3, 18, 3))
sketch6.addConstraint(Sketcher.Constraint("Diameter", 0, 3.1))
sketch6.addConstraint(Sketcher.Constraint("DistanceX", -1, 1, 0, 3, 57.0))
sketch6.addConstraint(Sketcher.Constraint("DistanceY", -1, 1, 0, 3, 114.0))
sketch6.addConstraint(Sketcher.Constraint("DistanceY", -1, 1, 2, 3, 102.0))
sketch6.addConstraint(Sketcher.Constraint("DistanceY", -1, 1, 4, 3, 90.0))
sketch6.addConstraint(Sketcher.Constraint("DistanceY", -1, 1, 6, 3, 78.0))
sketch6.addConstraint(Sketcher.Constraint("DistanceY", -1, 1, 8, 3, 66.0))
sketch6.addConstraint(Sketcher.Constraint("DistanceY", -1, 1, 10, 3, 54.0))
sketch6.addConstraint(Sketcher.Constraint("DistanceY", -1, 1, 12, 3, 42.0))
sketch6.addConstraint(Sketcher.Constraint("DistanceY", -1, 1, 14, 3, 30.0))
sketch6.addConstraint(Sketcher.Constraint("DistanceY", -1, 1, 16, 3, 18.0))
sketch6.addConstraint(Sketcher.Constraint("DistanceY", -1, 1, 18, 3, 6.0))
doc.recompute()
hole2 = body.newObject("PartDesign::Hole", "Hole001")
hole2.Profile = sketch6
hole2.ThreadType = "None"
hole2.Diameter = 3.1
hole2.DepthType = "Dimension"
hole2.Depth = 4
hole2.DrillPoint = "Angled"
hole2.DrillPointAngle = 118

doc.recompute()
